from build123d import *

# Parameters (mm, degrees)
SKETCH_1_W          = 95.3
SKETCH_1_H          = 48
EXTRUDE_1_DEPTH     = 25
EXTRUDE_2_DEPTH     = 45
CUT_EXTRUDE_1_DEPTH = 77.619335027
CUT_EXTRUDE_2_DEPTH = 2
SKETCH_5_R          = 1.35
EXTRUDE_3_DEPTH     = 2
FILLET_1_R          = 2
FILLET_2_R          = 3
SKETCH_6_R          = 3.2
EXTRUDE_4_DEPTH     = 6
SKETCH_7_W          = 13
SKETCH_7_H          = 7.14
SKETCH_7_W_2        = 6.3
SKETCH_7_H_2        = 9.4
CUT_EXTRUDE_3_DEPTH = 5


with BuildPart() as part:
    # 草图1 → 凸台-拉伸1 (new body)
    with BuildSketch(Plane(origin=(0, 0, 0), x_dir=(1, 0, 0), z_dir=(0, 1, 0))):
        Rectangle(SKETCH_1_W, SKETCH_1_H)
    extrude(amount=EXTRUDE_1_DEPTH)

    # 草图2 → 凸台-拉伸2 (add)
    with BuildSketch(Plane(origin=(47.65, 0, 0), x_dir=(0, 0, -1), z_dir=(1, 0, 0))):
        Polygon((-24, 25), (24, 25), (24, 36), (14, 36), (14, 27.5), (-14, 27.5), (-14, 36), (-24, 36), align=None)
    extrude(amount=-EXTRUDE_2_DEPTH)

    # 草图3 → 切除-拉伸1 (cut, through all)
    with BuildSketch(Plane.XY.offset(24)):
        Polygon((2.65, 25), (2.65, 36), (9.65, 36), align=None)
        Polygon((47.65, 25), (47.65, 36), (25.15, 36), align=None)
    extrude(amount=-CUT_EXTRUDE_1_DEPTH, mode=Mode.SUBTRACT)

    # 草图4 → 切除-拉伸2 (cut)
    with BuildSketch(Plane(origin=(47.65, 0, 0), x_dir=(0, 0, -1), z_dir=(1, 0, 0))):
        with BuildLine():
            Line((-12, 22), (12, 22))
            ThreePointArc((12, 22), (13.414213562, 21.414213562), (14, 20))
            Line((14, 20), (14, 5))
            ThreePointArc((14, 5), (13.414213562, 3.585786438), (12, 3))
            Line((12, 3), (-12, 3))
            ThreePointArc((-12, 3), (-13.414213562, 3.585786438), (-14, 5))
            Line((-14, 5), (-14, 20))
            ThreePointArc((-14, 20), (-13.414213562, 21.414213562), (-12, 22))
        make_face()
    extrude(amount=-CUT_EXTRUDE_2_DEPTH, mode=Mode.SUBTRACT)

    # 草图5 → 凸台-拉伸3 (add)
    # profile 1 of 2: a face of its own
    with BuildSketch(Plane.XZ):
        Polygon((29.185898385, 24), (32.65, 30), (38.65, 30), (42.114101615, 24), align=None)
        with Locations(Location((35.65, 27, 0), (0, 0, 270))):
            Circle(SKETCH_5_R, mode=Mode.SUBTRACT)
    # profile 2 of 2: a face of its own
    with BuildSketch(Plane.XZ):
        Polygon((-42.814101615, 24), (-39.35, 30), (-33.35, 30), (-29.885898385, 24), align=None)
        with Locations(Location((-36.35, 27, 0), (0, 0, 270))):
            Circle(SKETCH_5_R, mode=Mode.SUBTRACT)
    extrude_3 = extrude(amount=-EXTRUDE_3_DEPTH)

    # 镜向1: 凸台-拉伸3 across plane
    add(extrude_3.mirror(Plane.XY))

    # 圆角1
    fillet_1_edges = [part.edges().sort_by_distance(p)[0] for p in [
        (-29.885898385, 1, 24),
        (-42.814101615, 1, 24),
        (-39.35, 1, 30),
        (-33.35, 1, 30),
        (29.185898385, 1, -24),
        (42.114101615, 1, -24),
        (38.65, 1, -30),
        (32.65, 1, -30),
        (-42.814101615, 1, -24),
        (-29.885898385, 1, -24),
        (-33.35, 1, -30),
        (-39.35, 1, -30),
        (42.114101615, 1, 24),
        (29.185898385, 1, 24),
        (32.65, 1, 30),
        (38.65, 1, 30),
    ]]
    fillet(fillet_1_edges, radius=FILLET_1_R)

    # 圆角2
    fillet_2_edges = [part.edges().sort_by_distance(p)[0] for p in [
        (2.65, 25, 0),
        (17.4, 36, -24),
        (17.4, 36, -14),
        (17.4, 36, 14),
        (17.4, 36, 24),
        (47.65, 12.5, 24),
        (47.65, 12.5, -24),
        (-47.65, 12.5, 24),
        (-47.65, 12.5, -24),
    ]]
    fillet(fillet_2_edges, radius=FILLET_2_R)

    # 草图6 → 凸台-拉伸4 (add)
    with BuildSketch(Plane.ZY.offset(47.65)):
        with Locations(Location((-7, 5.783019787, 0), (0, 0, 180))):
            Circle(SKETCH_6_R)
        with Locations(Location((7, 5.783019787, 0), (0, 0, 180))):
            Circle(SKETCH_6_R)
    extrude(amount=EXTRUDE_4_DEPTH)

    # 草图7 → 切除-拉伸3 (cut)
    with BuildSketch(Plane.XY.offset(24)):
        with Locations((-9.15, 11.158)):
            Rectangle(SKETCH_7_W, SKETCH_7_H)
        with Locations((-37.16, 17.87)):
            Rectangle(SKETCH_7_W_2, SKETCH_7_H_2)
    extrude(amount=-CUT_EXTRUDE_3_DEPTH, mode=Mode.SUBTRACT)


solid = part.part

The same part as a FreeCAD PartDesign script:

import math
import FreeCAD as App
import Part
import Sketcher
from FreeCAD import Vector
Q = App.Units.Quantity


def edges_at(feature, points):
    """Names of the edges that pass closest to the given points."""
    edges = feature.Shape.Edges
    near = lambda p: min(range(len(edges)), key=lambda i: edges[i].distToShape(Part.Vertex(*p))[0])
    return sorted({f"Edge{near(p) + 1}" for p in points})

doc = App.newDocument("Part")
params = doc.addObject("Spreadsheet::Sheet", "Params")
for row, (alias, value) in enumerate([
    ("sketch1_height", "48 mm"),
    ("sketch1_width", "95.3 mm"),
    ("pad1_length", "25 mm"),
    ("sketch2_width", "11 mm"),
    ("sketch2_height", "48 mm"),
    ("sketch2_height2", "10 mm"),
    ("sketch2_width2", "8.5 mm"),
    ("pad2_length", "45 mm"),
    ("sketch3_width", "7 mm"),
    ("sketch3_height", "11 mm"),
    ("sketch3_width2", "22.5 mm"),
    ("sketch4_radius", "2 mm"),
    ("sketch4_width", "15 mm"),
    ("sketch4_height", "24 mm"),
    ("pocket2_length", "2 mm"),
    ("sketch5_diameter", "2.7 mm"),
    ("sketch5_width", "6 mm"),
    ("pad3_length", "2 mm"),
    ("fillet_radius", "2 mm"),
    ("fillet2_radius", "3 mm"),
    ("sketch6_diameter", "6.4 mm"),
    ("pad4_length", "6 mm"),
    ("sketch7_width", "13 mm"),
    ("sketch7_width2", "6.3 mm"),
    ("sketch7_height", "9.4 mm"),
    ("sketch7_height2", "7.14 mm"),
    ("pocket3_length", "5 mm"),
], start=1):
    params.set(f"A{row}", alias)
    params.set(f"B{row}", "=" + value)
    params.setAlias(f"B{row}", alias)

body = doc.addObject("PartDesign::Body", "Body")

# Sketch on XZ plane
sketch1 = body.newObject("Sketcher::SketchObject", "Sketch")
sketch1.AttachmentSupport = (doc.getObject("XZ_Plane"), [""])
sketch1.MapMode = "FlatFace"
sketch1.addGeometry([
    Part.LineSegment(Vector(-47.65, -24, 0), Vector(-47.65, 24, 0)),
    Part.LineSegment(Vector(-47.65, 24, 0), Vector(47.65, 24, 0)),
    Part.LineSegment(Vector(47.65, 24, 0), Vector(47.65, -24, 0)),
    Part.LineSegment(Vector(47.65, -24, 0), Vector(-47.65, -24, 0)),
], False)
sketch1.addConstraint([
    Sketcher.Constraint("Coincident", 0, 2, 1, 1),
    Sketcher.Constraint("Coincident", 1, 2, 2, 1),
    Sketcher.Constraint("Coincident", 2, 2, 3, 1),
    Sketcher.Constraint("Coincident", 3, 2, 0, 1),
    Sketcher.Constraint("Vertical", 0),
    Sketcher.Constraint("Horizontal", 1),
    Sketcher.Constraint("Vertical", 2),
    Sketcher.Constraint("Horizontal", 3),
    Sketcher.Constraint("Symmetric", 0, 2, 2, 2, -1, 1),
    Sketcher.Constraint("DistanceY", 0, 1, 0, 2, Q("48 mm")),
    Sketcher.Constraint("DistanceX", 1, 1, 1, 2, Q("95.3 mm")),
])
sketch1.setExpression("Constraints[9]", "Params.sketch1_height")
sketch1.setExpression("Constraints[10]", "Params.sketch1_width")
pad1 = body.newObject("PartDesign::Pad", "Pad")
pad1.Profile = sketch1
pad1.setExpression("Length", "Params.pad1_length")
pad1.Reversed = True

# Sketch on YZ plane
sketch2 = body.newObject("Sketcher::SketchObject", "Sketch001")
sketch2.AttachmentSupport = (doc.getObject("YZ_Plane"), [""])
sketch2.MapMode = "FlatFace"
sketch2.AttachmentOffset = App.Placement(Vector(0, 0, 47.65), App.Rotation())
sketch2.addGeometry([
    Part.LineSegment(Vector(25, 24, 0), Vector(25, -24, 0)),  # 0
    Part.LineSegment(Vector(25, -24, 0), Vector(36, -24, 0)),  # 1
    Part.LineSegment(Vector(36, -24, 0), Vector(36, -14, 0)),  # 2
    Part.LineSegment(Vector(36, -14, 0), Vector(27.5, -14, 0)),  # 3
    Part.LineSegment(Vector(27.5, -14, 0), Vector(27.5, 14, 0)),  # 4
    Part.LineSegment(Vector(27.5, 14, 0), Vector(36, 14, 0)),  # 5
    Part.LineSegment(Vector(36, 14, 0), Vector(36, 24, 0)),  # 6
    Part.LineSegment(Vector(36, 24, 0), Vector(25, 24, 0)),  # 7
], False)
sketch2.addConstraint([
    Sketcher.Constraint("Coincident", 0, 2, 1, 1),
    Sketcher.Constraint("Coincident", 1, 2, 2, 1),
    Sketcher.Constraint("Coincident", 2, 2, 3, 1),
    Sketcher.Constraint("Coincident", 3, 2, 4, 1),
    Sketcher.Constraint("Coincident", 4, 2, 5, 1),
    Sketcher.Constraint("Coincident", 5, 2, 6, 1),
    Sketcher.Constraint("Coincident", 6, 2, 7, 1),
    Sketcher.Constraint("Coincident", 7, 2, 0, 1),
    Sketcher.Constraint("Vertical", 0),
    Sketcher.Constraint("Horizontal", 1),
    Sketcher.Constraint("Vertical", 2),
    Sketcher.Constraint("Horizontal", 3),
    Sketcher.Constraint("Vertical", 4),
    Sketcher.Constraint("Horizontal", 5),
    Sketcher.Constraint("Vertical", 6),
    Sketcher.Constraint("Horizontal", 7),
    Sketcher.Constraint("Symmetric", 2, 2, 5, 2, -1),
    Sketcher.Constraint("Equal", 2, 6),
    Sketcher.Constraint("DistanceX", 1, 1, 1, 2, Q("11 mm")),
    Sketcher.Constraint("DistanceY", 0, 2, 0, 1, Q("48 mm")),
    Sketcher.Constraint("DistanceY", 2, 1, 2, 2, Q("10 mm")),
    Sketcher.Constraint("DistanceX", 3, 2, 3, 1, Q("8.5 mm")),
    Sketcher.Constraint("DistanceX", -1, 1, 0, 2, Q("25 mm")),
])
sketch2.setExpression("Constraints[18]", "Params.sketch2_width")
sketch2.setExpression("Constraints[19]", "Params.sketch2_height")
sketch2.setExpression("Constraints[20]", "Params.sketch2_height2")
sketch2.setExpression("Constraints[21]", "Params.sketch2_width2")
pad2 = body.newObject("PartDesign::Pad", "Pad001")
pad2.Profile = sketch2
pad2.setExpression("Length", "Params.pad2_length")
pad2.Reversed = True

# Sketch on XY plane
sketch3 = body.newObject("Sketcher::SketchObject", "Sketch002")
sketch3.AttachmentSupport = (doc.getObject("XY_Plane"), [""])
sketch3.MapMode = "FlatFace"
sketch3.AttachmentOffset = App.Placement(Vector(0, 0, 24), App.Rotation())
sketch3.addGeometry([
    Part.LineSegment(Vector(2.65, 36, 0), Vector(2.65, 25, 0)),  # 0
    Part.LineSegment(Vector(2.65, 25, 0), Vector(9.65, 36, 0)),  # 1
    Part.LineSegment(Vector(9.65, 36, 0), Vector(2.65, 36, 0)),  # 2
    Part.LineSegment(Vector(47.65, 25, 0), Vector(47.65, 36, 0)),  # 3
    Part.LineSegment(Vector(47.65, 36, 0), Vector(25.15, 36, 0)),  # 4
    Part.LineSegment(Vector(25.15, 36, 0), Vector(47.65, 25, 0)),  # 5
], False)
sketch3.addConstraint([
    Sketcher.Constraint("Coincident", 0, 2, 1, 1),
    Sketcher.Constraint("Coincident", 1, 2, 2, 1),
    Sketcher.Constraint("Coincident", 2, 2, 0, 1),
    Sketcher.Constraint("Coincident", 3, 2, 4, 1),
    Sketcher.Constraint("Coincident", 4, 2, 5, 1),
    Sketcher.Constraint("Coincident", 5, 2, 3, 1),
    Sketcher.Constraint("Vertical", 0),
    Sketcher.Constraint("Horizontal", 2),
    Sketcher.Constraint("Vertical", 3),
    Sketcher.Constraint("Horizontal", 4),
    Sketcher.Constraint("Horizontal", 2, 2, 3, 2),
    Sketcher.Constraint("Horizontal", 0, 2, 5, 2),
    Sketcher.Constraint("DistanceX", 2, 2, 2, 1, Q("7 mm")),
    Sketcher.Constraint("DistanceY", 0, 2, 0, 1, Q("11 mm")),
    Sketcher.Constraint("DistanceX", 4, 2, 4, 1, Q("22.5 mm")),
    Sketcher.Constraint("DistanceY", -1, 1, 0, 2, Q("25 mm")),
    Sketcher.Constraint("DistanceX", 1, 2, 3, 2, Q("38 mm")),
    Sketcher.Constraint("DistanceX", -1, 1, 0, 2, Q("2.65 mm")),
])
sketch3.setExpression("Constraints[12]", "Params.sketch3_width")
sketch3.setExpression("Constraints[13]", "Params.sketch3_height")
sketch3.setExpression("Constraints[14]", "Params.sketch3_width2")
pocket1 = body.newObject("PartDesign::Pocket", "Pocket")
pocket1.Profile = sketch3
pocket1.Type = "ThroughAll"

# Sketch on YZ plane
sketch4 = body.newObject("Sketcher::SketchObject", "Sketch003")
sketch4.AttachmentSupport = (doc.getObject("YZ_Plane"), [""])
sketch4.MapMode = "FlatFace"
sketch4.AttachmentOffset = App.Placement(Vector(0, 0, 47.65), App.Rotation())
sketch4.addGeometry([
    Part.LineSegment(Vector(22, -12, 0), Vector(22, 12, 0)),  # 0
    Part.ArcOfCircle(Part.Circle(Vector(20, 12, 0), Vector(0, 0, 1), 2), math.radians(0), math.radians(90)),  # 1
    Part.LineSegment(Vector(20, 14, 0), Vector(5, 14, 0)),  # 2
    Part.ArcOfCircle(Part.Circle(Vector(5, 12, 0), Vector(0, 0, 1), 2), math.radians(90), math.radians(180)),  # 3
    Part.LineSegment(Vector(3, 12, 0), Vector(3, -12, 0)),  # 4
    Part.ArcOfCircle(Part.Circle(Vector(5, -12, 0), Vector(0, 0, 1), 2), math.radians(-180), math.radians(-90)),  # 5
    Part.LineSegment(Vector(5, -14, 0), Vector(20, -14, 0)),  # 6
    Part.ArcOfCircle(Part.Circle(Vector(20, -12, 0), Vector(0, 0, 1), 2), math.radians(-90), math.radians(0)),  # 7
], False)
sketch4.addConstraint([
    Sketcher.Constraint("Tangent", 0, 2, 1, 1),
    Sketcher.Constraint("Tangent", 1, 2, 2, 1),
    Sketcher.Constraint("Tangent", 2, 2, 3, 1),
    Sketcher.Constraint("Tangent", 3, 2, 4, 1),
    Sketcher.Constraint("Tangent", 4, 2, 5, 1),
    Sketcher.Constraint("Tangent", 5, 2, 6, 1),
    Sketcher.Constraint("Tangent", 6, 2, 7, 1),
    Sketcher.Constraint("Tangent", 7, 2, 0, 1),
    Sketcher.Constraint("Vertical", 0),
    Sketcher.Constraint("Horizontal", 2),
    Sketcher.Constraint("Vertical", 4),
    Sketcher.Constraint("Horizontal", 6),
    Sketcher.Constraint("Equal", 1, 3),
    Sketcher.Constraint("Equal", 3, 5),
    Sketcher.Constraint("Equal", 5, 7),
    Sketcher.Constraint("Radius", 1, Q("2 mm")),
    Sketcher.Constraint("DistanceX", 2, 2, 2, 1, Q("15 mm")),
    Sketcher.Constraint("DistanceY", 0, 1, 0, 2, Q("24 mm")),
    Sketcher.Constraint("DistanceX", -1, 1, 1, 3, Q("20 mm")),
    Sketcher.Constraint("DistanceY", -1, 1, 1, 3, Q("12 mm")),
])
sketch4.setExpression("Constraints[15]", "Params.sketch4_radius")
sketch4.setExpression("Constraints[16]", "Params.sketch4_width")
sketch4.setExpression("Constraints[17]", "Params.sketch4_height")
pocket2 = body.newObject("PartDesign::Pocket", "Pocket001")
pocket2.Profile = sketch4
pocket2.setExpression("Length", "Params.pocket2_length")

# Sketch on XZ plane
sketch5 = body.newObject("Sketcher::SketchObject", "Sketch004")
sketch5.AttachmentSupport = (doc.getObject("XZ_Plane"), [""])
sketch5.MapMode = "FlatFace"
sketch5.addGeometry([
    Part.LineSegment(Vector(32.65, 30, 0), Vector(29.185898, 24, 0)),  # 0
    Part.LineSegment(Vector(29.185898, 24, 0), Vector(42.114102, 24, 0)),  # 1
    Part.LineSegment(Vector(42.114102, 24, 0), Vector(38.65, 30, 0)),  # 2
    Part.LineSegment(Vector(38.65, 30, 0), Vector(32.65, 30, 0)),  # 3
    Part.Circle(Vector(35.65, 27, 0), Vector(0, 0, 1), 1.35),  # 4
    Part.LineSegment(Vector(-39.35, 30, 0), Vector(-42.814102, 24, 0)),  # 5
    Part.LineSegment(Vector(-42.814102, 24, 0), Vector(-29.885898, 24, 0)),  # 6
    Part.LineSegment(Vector(-29.885898, 24, 0), Vector(-33.35, 30, 0)),  # 7
    Part.LineSegment(Vector(-33.35, 30, 0), Vector(-39.35, 30, 0)),  # 8
    Part.Circle(Vector(-36.35, 27, 0), Vector(0, 0, 1), 1.35),  # 9
], False)
sketch5.addConstraint([
    Sketcher.Constraint("Coincident", 0, 2, 1, 1),
    Sketcher.Constraint("Coincident", 1, 2, 2, 1),
    Sketcher.Constraint("Coincident", 2, 2, 3, 1),
    Sketcher.Constraint("Coincident", 3, 2, 0, 1),
    Sketcher.Constraint("Coincident", 5, 2, 6, 1),
    Sketcher.Constraint("Coincident", 6, 2, 7, 1),
    Sketcher.Constraint("Coincident", 7, 2, 8, 1),
    Sketcher.Constraint("Coincident", 8, 2, 5, 1),
    Sketcher.Constraint("Horizontal", 1),
    Sketcher.Constraint("Horizontal", 3),
    Sketcher.Constraint("Horizontal", 6),
    Sketcher.Constraint("Horizontal", 8),
    Sketcher.Constraint("Equal", 4, 9),
    Sketcher.Constraint("Parallel", 0, 5),
    Sketcher.Constraint("Parallel", 2, 7),
    Sketcher.Constraint("Horizontal", 4, 3, 9, 3),
    Sketcher.Constraint("Horizontal", 1, 2, 5, 2),
    Sketcher.Constraint("Horizontal", 3, 2, 7, 2),
    Sketcher.Constraint("Equal", 1, 6),
    Sketcher.Constraint("Equal", 0, 2),
    Sketcher.Constraint("Diameter", 4, Q("2.7 mm")),
    Sketcher.Constraint("DistanceX", 3, 2, 3, 1, Q("6 mm")),
    Sketcher.Constraint("Angle", 0, Q("-120 deg")),
    Sketcher.Constraint("DistanceY", -1, 1, 4, 3, Q("27 mm")),
    Sketcher.Constraint("DistanceY", -1, 1, 0, 2, Q("24 mm")),
    Sketcher.Constraint("DistanceY", -1, 1, 2, 2, Q("30 mm")),
    Sketcher.Constraint("DistanceX", 9, 3, 4, 3, Q("72 mm")),
    Sketcher.Constraint("DistanceX", 4, 3, 2, 2, Q("3 mm")),
    Sketcher.Constraint("DistanceX", 5, 2, 0, 2, Q("72 mm")),
    Sketcher.Constraint("DistanceX", -1, 1, 4, 3, Q("35.65 mm")),
])
sketch5.setExpression("Constraints[20]", "Params.sketch5_diameter")
sketch5.setExpression("Constraints[21]", "Params.sketch5_width")
pad3 = body.newObject("PartDesign::Pad", "Pad002")
pad3.Profile = sketch5
pad3.setExpression("Length", "Params.pad3_length")
pad3.Reversed = True
doc.recompute()

mirrored = body.newObject("PartDesign::Mirrored", "Mirrored")
mirrored.Originals = [pad3]
mirrored.MirrorPlane = (doc.getObject("XY_Plane"), [""])
body.Tip = mirrored
doc.recompute()

fillet = body.newObject("PartDesign::Fillet", "Fillet")
fillet.Base = (mirrored, edges_at(mirrored, [
    (-29.886, 1, 24),
    (-42.814, 1, 24),
    (-39.35, 1, 30),
    (-33.35, 1, 30),
    (29.186, 1, -24),
    (42.114, 1, -24),
    (38.65, 1, -30),
    (32.65, 1, -30),
    (-42.814, 1, -24),
    (-29.886, 1, -24),
    (-33.35, 1, -30),
    (-39.35, 1, -30),
    (42.114, 1, 24),
    (29.186, 1, 24),
    (32.65, 1, 30),
    (38.65, 1, 30),
]))
fillet.setExpression("Radius", "Params.fillet_radius")
doc.recompute()

fillet2 = body.newObject("PartDesign::Fillet", "Fillet001")
fillet2.Base = (fillet, edges_at(fillet, [
    (2.65, 25, 0),
    (17.4, 36, -24),
    (17.4, 36, -14),
    (17.4, 36, 14),
    (17.4, 36, 24),
    (47.65, 12.5, 24),
    (47.65, 12.5, -24),
    (-47.65, 12.5, 24),
    (-47.65, 12.5, -24),
]))
fillet2.setExpression("Radius", "Params.fillet2_radius")

# Sketch on YZ plane
sketch6 = body.newObject("Sketcher::SketchObject", "Sketch005")
sketch6.AttachmentSupport = (doc.getObject("YZ_Plane"), [""])
sketch6.MapMode = "FlatFace"
sketch6.AttachmentOffset = App.Placement(Vector(0, 0, -47.65), App.Rotation())
sketch6.addGeometry([
    Part.Circle(Vector(5.78302, -7, 0), Vector(0, 0, 1), 3.2),
    Part.Circle(Vector(5.78302, 7, 0), Vector(0, 0, 1), 3.2),
], False)
sketch6.addConstraint([
    Sketcher.Constraint("Equal", 0, 1),
    Sketcher.Constraint("Symmetric", 0, 3, 1, 3, -1),
    Sketcher.Constraint("Diameter", 0, Q("6.4 mm")),
    Sketcher.Constraint("DistanceY", 0, 3, -1, 1, Q("7 mm")),
    Sketcher.Constraint("DistanceX", -1, 1, 0, 3, Q("5.78302 mm")),
])
sketch6.setExpression("Constraints[2]", "Params.sketch6_diameter")
pad4 = body.newObject("PartDesign::Pad", "Pad003")
pad4.Profile = sketch6
pad4.setExpression("Length", "Params.pad4_length")
pad4.Reversed = True

# Sketch on XY plane
sketch7 = body.newObject("Sketcher::SketchObject", "Sketch006")
sketch7.AttachmentSupport = (doc.getObject("XY_Plane"), [""])
sketch7.MapMode = "FlatFace"
sketch7.AttachmentOffset = App.Placement(Vector(0, 0, 24), App.Rotation())
sketch7.addGeometry([
    Part.LineSegment(Vector(-15.65, 14.728, 0), Vector(-15.65, 7.588, 0)),  # 0
    Part.LineSegment(Vector(-15.65, 7.588, 0), Vector(-2.65, 7.588, 0)),  # 1
    Part.LineSegment(Vector(-2.65, 7.588, 0), Vector(-2.65, 14.728, 0)),  # 2
    Part.LineSegment(Vector(-2.65, 14.728, 0), Vector(-15.65, 14.728, 0)),  # 3
    Part.LineSegment(Vector(-40.31, 22.57, 0), Vector(-40.31, 13.17, 0)),  # 4
    Part.LineSegment(Vector(-40.31, 13.17, 0), Vector(-34.01, 13.17, 0)),  # 5
    Part.LineSegment(Vector(-34.01, 13.17, 0), Vector(-34.01, 22.57, 0)),  # 6
    Part.LineSegment(Vector(-34.01, 22.57, 0), Vector(-40.31, 22.57, 0)),  # 7
], False)
sketch7.addConstraint([
    Sketcher.Constraint("Coincident", 0, 2, 1, 1),
    Sketcher.Constraint("Coincident", 1, 2, 2, 1),
    Sketcher.Constraint("Coincident", 2, 2, 3, 1),
    Sketcher.Constraint("Coincident", 3, 2, 0, 1),
    Sketcher.Constraint("Coincident", 4, 2, 5, 1),
    Sketcher.Constraint("Coincident", 5, 2, 6, 1),
    Sketcher.Constraint("Coincident", 6, 2, 7, 1),
    Sketcher.Constraint("Coincident", 7, 2, 4, 1),
    Sketcher.Constraint("Vertical", 0),
    Sketcher.Constraint("Horizontal", 1),
    Sketcher.Constraint("Vertical", 2),
    Sketcher.Constraint("Horizontal", 3),
    Sketcher.Constraint("Vertical", 4),
    Sketcher.Constraint("Horizontal", 5),
    Sketcher.Constraint("Vertical", 6),
    Sketcher.Constraint("Horizontal", 7),
    Sketcher.Constraint("DistanceX", 1, 1, 1, 2, Q("13 mm")),
    Sketcher.Constraint("DistanceX", 5, 1, 5, 2, Q("6.3 mm")),
    Sketcher.Constraint("DistanceY", 4, 2, 4, 1, Q("9.4 mm")),
    Sketcher.Constraint("DistanceY", 0, 2, 0, 1, Q("7.14 mm")),
    Sketcher.Constraint("DistanceX", 0, 2, -1, 1, Q("15.65 mm")),
    Sketcher.Constraint("DistanceX", 4, 2, -1, 1, Q("40.31 mm")),
    Sketcher.Constraint("DistanceY", -1, 1, 4, 2, Q("13.17 mm")),
    Sketcher.Constraint("DistanceY", -1, 1, 0, 2, Q("7.588 mm")),
])
sketch7.setExpression("Constraints[16]", "Params.sketch7_width")
sketch7.setExpression("Constraints[17]", "Params.sketch7_width2")
sketch7.setExpression("Constraints[18]", "Params.sketch7_height")
sketch7.setExpression("Constraints[19]", "Params.sketch7_height2")
pocket3 = body.newObject("PartDesign::Pocket", "Pocket002")
pocket3.Profile = sketch7
pocket3.setExpression("Length", "Params.pocket3_length")

doc.recompute()
